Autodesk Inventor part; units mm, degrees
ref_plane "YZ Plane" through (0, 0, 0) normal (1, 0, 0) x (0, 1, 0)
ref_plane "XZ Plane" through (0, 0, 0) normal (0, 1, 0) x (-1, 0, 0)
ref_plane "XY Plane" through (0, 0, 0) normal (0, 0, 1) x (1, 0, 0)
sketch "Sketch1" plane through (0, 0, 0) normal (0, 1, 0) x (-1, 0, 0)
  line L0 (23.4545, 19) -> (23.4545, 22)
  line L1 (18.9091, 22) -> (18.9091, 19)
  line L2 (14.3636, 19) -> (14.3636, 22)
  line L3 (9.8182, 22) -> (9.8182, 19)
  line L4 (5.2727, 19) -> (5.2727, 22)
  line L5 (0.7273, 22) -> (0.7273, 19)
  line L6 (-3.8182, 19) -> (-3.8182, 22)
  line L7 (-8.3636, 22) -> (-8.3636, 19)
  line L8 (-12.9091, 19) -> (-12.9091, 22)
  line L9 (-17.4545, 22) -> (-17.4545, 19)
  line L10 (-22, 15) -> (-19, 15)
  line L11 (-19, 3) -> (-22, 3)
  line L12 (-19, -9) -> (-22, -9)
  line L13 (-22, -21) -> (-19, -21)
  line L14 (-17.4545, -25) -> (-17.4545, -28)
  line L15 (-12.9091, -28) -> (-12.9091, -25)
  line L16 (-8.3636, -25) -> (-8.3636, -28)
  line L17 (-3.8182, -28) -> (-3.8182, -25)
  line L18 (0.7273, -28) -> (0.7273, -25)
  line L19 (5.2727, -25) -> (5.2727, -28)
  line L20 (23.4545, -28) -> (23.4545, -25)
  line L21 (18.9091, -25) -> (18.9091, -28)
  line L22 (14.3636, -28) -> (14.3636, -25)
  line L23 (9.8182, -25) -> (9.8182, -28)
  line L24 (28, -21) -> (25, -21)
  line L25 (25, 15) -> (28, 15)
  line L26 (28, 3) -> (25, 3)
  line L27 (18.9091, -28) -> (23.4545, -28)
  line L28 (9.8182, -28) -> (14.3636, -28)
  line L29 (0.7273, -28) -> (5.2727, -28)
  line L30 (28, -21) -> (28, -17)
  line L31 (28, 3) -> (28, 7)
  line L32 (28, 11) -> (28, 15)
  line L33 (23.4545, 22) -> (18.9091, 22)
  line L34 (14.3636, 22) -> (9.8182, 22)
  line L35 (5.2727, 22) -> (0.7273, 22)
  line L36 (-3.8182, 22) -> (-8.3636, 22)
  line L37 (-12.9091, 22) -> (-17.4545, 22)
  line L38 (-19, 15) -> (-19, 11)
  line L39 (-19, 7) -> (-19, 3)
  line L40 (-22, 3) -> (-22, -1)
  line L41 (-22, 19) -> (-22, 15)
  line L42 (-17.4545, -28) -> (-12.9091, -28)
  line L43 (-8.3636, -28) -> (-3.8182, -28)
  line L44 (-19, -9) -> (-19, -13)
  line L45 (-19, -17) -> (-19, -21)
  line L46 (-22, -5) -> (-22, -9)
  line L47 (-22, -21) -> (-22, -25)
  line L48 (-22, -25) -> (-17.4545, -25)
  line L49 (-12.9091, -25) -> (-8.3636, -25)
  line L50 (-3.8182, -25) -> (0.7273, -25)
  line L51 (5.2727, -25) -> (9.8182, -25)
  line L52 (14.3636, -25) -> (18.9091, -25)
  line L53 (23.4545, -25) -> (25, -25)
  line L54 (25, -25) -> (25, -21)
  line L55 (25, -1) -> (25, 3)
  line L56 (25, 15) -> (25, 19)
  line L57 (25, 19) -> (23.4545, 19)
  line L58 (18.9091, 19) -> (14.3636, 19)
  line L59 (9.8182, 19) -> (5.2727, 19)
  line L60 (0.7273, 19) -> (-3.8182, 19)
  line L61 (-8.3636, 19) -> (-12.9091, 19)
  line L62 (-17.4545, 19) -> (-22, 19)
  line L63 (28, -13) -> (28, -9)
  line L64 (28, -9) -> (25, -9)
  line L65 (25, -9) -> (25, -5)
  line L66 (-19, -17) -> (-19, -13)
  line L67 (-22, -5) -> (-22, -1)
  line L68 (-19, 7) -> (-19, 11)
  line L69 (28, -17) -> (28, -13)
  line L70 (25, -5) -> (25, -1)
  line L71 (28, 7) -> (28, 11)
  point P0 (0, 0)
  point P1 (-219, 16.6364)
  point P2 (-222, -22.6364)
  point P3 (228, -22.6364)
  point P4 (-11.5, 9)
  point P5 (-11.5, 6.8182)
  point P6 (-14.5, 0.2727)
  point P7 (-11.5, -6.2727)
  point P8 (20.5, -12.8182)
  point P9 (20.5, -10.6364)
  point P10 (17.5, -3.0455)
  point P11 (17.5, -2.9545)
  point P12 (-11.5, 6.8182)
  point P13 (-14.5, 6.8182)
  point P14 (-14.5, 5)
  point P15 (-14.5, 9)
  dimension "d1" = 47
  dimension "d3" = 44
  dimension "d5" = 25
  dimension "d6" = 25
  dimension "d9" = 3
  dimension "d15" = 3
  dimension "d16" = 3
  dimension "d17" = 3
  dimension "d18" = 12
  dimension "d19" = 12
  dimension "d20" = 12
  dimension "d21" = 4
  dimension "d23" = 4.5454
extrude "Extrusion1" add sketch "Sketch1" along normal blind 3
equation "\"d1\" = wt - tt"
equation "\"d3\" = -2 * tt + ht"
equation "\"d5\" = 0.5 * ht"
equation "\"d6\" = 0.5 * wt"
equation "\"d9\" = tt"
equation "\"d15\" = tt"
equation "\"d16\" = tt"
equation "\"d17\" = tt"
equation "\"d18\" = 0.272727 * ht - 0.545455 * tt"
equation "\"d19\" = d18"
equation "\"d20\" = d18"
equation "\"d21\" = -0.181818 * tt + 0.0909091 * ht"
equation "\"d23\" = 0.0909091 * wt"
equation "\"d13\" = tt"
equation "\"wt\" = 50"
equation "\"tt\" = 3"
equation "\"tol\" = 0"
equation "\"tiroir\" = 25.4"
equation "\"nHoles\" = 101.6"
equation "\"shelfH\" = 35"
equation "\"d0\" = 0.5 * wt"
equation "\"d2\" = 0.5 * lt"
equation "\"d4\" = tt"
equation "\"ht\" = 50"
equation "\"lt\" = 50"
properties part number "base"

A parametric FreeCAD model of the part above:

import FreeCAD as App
import Part
import Sketcher
Q = App.Units.Quantity


def add_polygon(sketch, points):
    """Adds a closed chain of lines whose ends are joined by coincident constraints."""
    first, n = sketch.GeometryCount, len(points)
    for a, b in zip(points, points[1:] + points[:1]):
        sketch.addGeometry(Part.LineSegment(App.Vector(*a, 0), App.Vector(*b, 0)), False)
    for i in range(n):
        sketch.addConstraint(Sketcher.Constraint("Coincident", first + i, 2, first + (i + 1) % n, 1))

doc = App.newDocument("Part")
body = doc.addObject("PartDesign::Body", "Body")

# Sketch on XZ plane
sketch1 = body.newObject("Sketcher::SketchObject", "Sketch")
sketch1.AttachmentSupport = (doc.getObject("XZ_Plane"), [""])
sketch1.MapMode = "FlatFace"
add_polygon(sketch1, [(-25, 19), (-23.4545, 19), (-23.4545, 22), (-18.9091, 22), (-18.9091, 19), (-14.3636, 19), (-14.3636, 22), (-9.8182, 22), (-9.8182, 19), (-5.2727, 19), (-5.2727, 22), (-0.7273, 22), (-0.7273, 19), (3.8182, 19), (3.8182, 22), (8.3636, 22), (8.3636, 19), (12.9091, 19), (12.9091, 22), (17.4545, 22), (17.4545, 19), (22, 19), (22, 15), (19, 15), (19, 3), (22, 3), (22, -9), (19, -9), (19, -21), (22, -21), (22, -25), (17.4545, -25), (17.4545, -28), (12.9091, -28), (12.9091, -25), (8.3636, -25), (8.3636, -28), (3.8182, -28), (3.8182, -25), (-0.7273, -25), (-0.7273, -28), (-5.2727, -28), (-5.2727, -25), (-9.8182, -25), (-9.8182, -28), (-14.3636, -28), (-14.3636, -25), (-18.9091, -25), (-18.9091, -28), (-23.4545, -28), (-23.4545, -25), (-25, -25), (-25, -21), (-28, -21), (-28, -9), (-25, -9), (-25, 3), (-28, 3), (-28, 15), (-25, 15)])  # lines 0-59
sketch1.addConstraint(Sketcher.Constraint("Horizontal", 0))
sketch1.addConstraint(Sketcher.Constraint("Vertical", 1))
sketch1.addConstraint(Sketcher.Constraint("Horizontal", 2))
sketch1.addConstraint(Sketcher.Constraint("Vertical", 3))
sketch1.addConstraint(Sketcher.Constraint("Horizontal", 4))
sketch1.addConstraint(Sketcher.Constraint("Vertical", 5))
sketch1.addConstraint(Sketcher.Constraint("Horizontal", 6))
sketch1.addConstraint(Sketcher.Constraint("Vertical", 7))
sketch1.addConstraint(Sketcher.Constraint("Horizontal", 8))
sketch1.addConstraint(Sketcher.Constraint("Vertical", 9))
sketch1.addConstraint(Sketcher.Constraint("Horizontal", 10))
sketch1.addConstraint(Sketcher.Constraint("Vertical", 11))
sketch1.addConstraint(Sketcher.Constraint("Horizontal", 12))
sketch1.addConstraint(Sketcher.Constraint("Vertical", 13))
sketch1.addConstraint(Sketcher.Constraint("Horizontal", 14))
sketch1.addConstraint(Sketcher.Constraint("Vertical", 15))
sketch1.addConstraint(Sketcher.Constraint("Horizontal", 16))
sketch1.addConstraint(Sketcher.Constraint("Vertical", 17))
sketch1.addConstraint(Sketcher.Constraint("Horizontal", 18))
sketch1.addConstraint(Sketcher.Constraint("Vertical", 19))
sketch1.addConstraint(Sketcher.Constraint("Horizontal", 20))
sketch1.addConstraint(Sketcher.Constraint("Vertical", 21))
sketch1.addConstraint(Sketcher.Constraint("Horizontal", 22))
sketch1.addConstraint(Sketcher.Constraint("Vertical", 23))
sketch1.addConstraint(Sketcher.Constraint("Horizontal", 24))
sketch1.addConstraint(Sketcher.Constraint("Vertical", 25))
sketch1.addConstraint(Sketcher.Constraint("Horizontal", 26))
sketch1.addConstraint(Sketcher.Constraint("Vertical", 27))
sketch1.addConstraint(Sketcher.Constraint("Horizontal", 28))
sketch1.addConstraint(Sketcher.Constraint("Vertical", 29))
sketch1.addConstraint(Sketcher.Constraint("Horizontal", 30))
sketch1.addConstraint(Sketcher.Constraint("Vertical", 31))
sketch1.addConstraint(Sketcher.Constraint("Horizontal", 32))
sketch1.addConstraint(Sketcher.Constraint("Vertical", 33))
sketch1.addConstraint(Sketcher.Constraint("Horizontal", 34))
sketch1.addConstraint(Sketcher.Constraint("Vertical", 35))
sketch1.addConstraint(Sketcher.Constraint("Horizontal", 36))
sketch1.addConstraint(Sketcher.Constraint("Vertical", 37))
sketch1.addConstraint(Sketcher.Constraint("Horizontal", 38))
sketch1.addConstraint(Sketcher.Constraint("Vertical", 39))
sketch1.addConstraint(Sketcher.Constraint("Horizontal", 40))
sketch1.addConstraint(Sketcher.Constraint("Vertical", 41))
sketch1.addConstraint(Sketcher.Constraint("Horizontal", 42))
sketch1.addConstraint(Sketcher.Constraint("Vertical", 43))
sketch1.addConstraint(Sketcher.Constraint("Horizontal", 44))
sketch1.addConstraint(Sketcher.Constraint("Vertical", 45))
sketch1.addConstraint(Sketcher.Constraint("Horizontal", 46))
sketch1.addConstraint(Sketcher.Constraint("Vertical", 47))
sketch1.addConstraint(Sketcher.Constraint("Horizontal", 48))
sketch1.addConstraint(Sketcher.Constraint("Vertical", 49))
sketch1.addConstraint(Sketcher.Constraint("Horizontal", 50))
sketch1.addConstraint(Sketcher.Constraint("Vertical", 51))
sketch1.addConstraint(Sketcher.Constraint("Horizontal", 52))
sketch1.addConstraint(Sketcher.Constraint("Vertical", 53))
sketch1.addConstraint(Sketcher.Constraint("Horizontal", 54))
sketch1.addConstraint(Sketcher.Constraint("Vertical", 55))
sketch1.addConstraint(Sketcher.Constraint("Horizontal", 56))
sketch1.addConstraint(Sketcher.Constraint("Vertical", 57))
sketch1.addConstraint(Sketcher.Constraint("Horizontal", 58))
sketch1.addConstraint(Sketcher.Constraint("Vertical", 59))
sketch1.addConstraint(Sketcher.Constraint("Horizontal", 0, 2, 3, 2))
sketch1.addConstraint(Sketcher.Constraint("Horizontal", 2, 2, 5, 2))
sketch1.addConstraint(Sketcher.Constraint("Horizontal", 4, 2, 7, 2))
sketch1.addConstraint(Sketcher.Constraint("Horizontal", 6, 2, 9, 2))
sketch1.addConstraint(Sketcher.Constraint("Horizontal", 8, 2, 11, 2))
sketch1.addConstraint(Sketcher.Constraint("Horizontal", 10, 2, 13, 2))
sketch1.addConstraint(Sketcher.Constraint("Horizontal", 12, 2, 15, 2))
sketch1.addConstraint(Sketcher.Constraint("Horizontal", 14, 2, 17, 2))
sketch1.addConstraint(Sketcher.Constraint("Horizontal", 16, 2, 19, 2))
sketch1.addConstraint(Sketcher.Constraint("Horizontal", 30, 2, 33, 2))
sketch1.addConstraint(Sketcher.Constraint("Horizontal", 32, 2, 35, 2))
sketch1.addConstraint(Sketcher.Constraint("Horizontal", 34, 2, 37, 2))
sketch1.addConstraint(Sketcher.Constraint("Horizontal", 36, 2, 39, 2))
sketch1.addConstraint(Sketcher.Constraint("Horizontal", 38, 2, 41, 2))
sketch1.addConstraint(Sketcher.Constraint("Horizontal", 40, 2, 43, 2))
sketch1.addConstraint(Sketcher.Constraint("Horizontal", 42, 2, 45, 2))
sketch1.addConstraint(Sketcher.Constraint("Horizontal", 44, 2, 47, 2))
sketch1.addConstraint(Sketcher.Constraint("Horizontal", 46, 2, 49, 2))
sketch1.addConstraint(Sketcher.Constraint("Horizontal", 28, 2, 51, 2))
sketch1.addConstraint(Sketcher.Constraint("Horizontal", 26, 2, 53, 2))
sketch1.addConstraint(Sketcher.Constraint("Horizontal", 24, 2, 55, 2))
sketch1.addConstraint(Sketcher.Constraint("Horizontal", 22, 2, 57, 2))
sketch1.addConstraint(Sketcher.Constraint("Vertical", 21, 2, 24, 2))
sketch1.addConstraint(Sketcher.Constraint("Vertical", 23, 2, 26, 2))
sketch1.addConstraint(Sketcher.Constraint("Vertical", 25, 2, 28, 2))
sketch1.addConstraint(Sketcher.Constraint("Vertical", 19, 2, 30, 2))
sketch1.addConstraint(Sketcher.Constraint("Vertical", 17, 2, 32, 2))
sketch1.addConstraint(Sketcher.Constraint("Vertical", 15, 2, 34, 2))
sketch1.addConstraint(Sketcher.Constraint("Vertical", 13, 2, 36, 2))
sketch1.addConstraint(Sketcher.Constraint("Vertical", 11, 2, 38, 2))
sketch1.addConstraint(Sketcher.Constraint("Vertical", 9, 2, 40, 2))
sketch1.addConstraint(Sketcher.Constraint("Vertical", 7, 2, 42, 2))
sketch1.addConstraint(Sketcher.Constraint("Vertical", 5, 2, 44, 2))
sketch1.addConstraint(Sketcher.Constraint("Vertical", 3, 2, 46, 2))
sketch1.addConstraint(Sketcher.Constraint("Vertical", 1, 2, 48, 2))
sketch1.addConstraint(Sketcher.Constraint("Vertical", 51, 2, 54, 2))
sketch1.addConstraint(Sketcher.Constraint("Vertical", 53, 2, 56, 2))
sketch1.addConstraint(Sketcher.Constraint("Vertical", 55, 2, 58, 2))
sketch1.addConstraint(Sketcher.Constraint("Equal", 2, 4))
sketch1.addConstraint(Sketcher.Constraint("Equal", 4, 6))
sketch1.addConstraint(Sketcher.Constraint("Equal", 6, 8))
sketch1.addConstraint(Sketcher.Constraint("Equal", 8, 10))
sketch1.addConstraint(Sketcher.Constraint("Equal", 10, 12))
sketch1.addConstraint(Sketcher.Constraint("Equal", 12, 14))
sketch1.addConstraint(Sketcher.Constraint("Equal", 14, 16))
sketch1.addConstraint(Sketcher.Constraint("Equal", 16, 18))
sketch1.addConstraint(Sketcher.Constraint("Equal", 18, 20))
sketch1.addConstraint(Sketcher.Constraint("Equal", 28, 52))
sketch1.addConstraint(Sketcher.Constraint("Equal", 58, 1))
sketch1.addConstraint(Sketcher.Constraint("Equal", 23, 25))
sketch1.addConstraint(Sketcher.Constraint("Equal", 25, 27))
sketch1.addConstraint(Sketcher.Constraint("Equal", 21, 29))
sketch1.addConstraint(Sketcher.Constraint("Equal", 19, 31))
sketch1.addConstraint(Sketcher.Constraint("DistanceX", 22, 2, 22, 1, Q("3 mm")))
sketch1.addConstraint(Sketcher.Constraint("DistanceY", 21, 2, 21, 1, Q("4 mm")))
sketch1.addConstraint(Sketcher.Constraint("DistanceY", 23, 2, 23, 1, Q("12 mm")))
sketch1.addConstraint(Sketcher.Constraint("DistanceY", -1, 1, 23, 2, Q("3 mm")))
sketch1.addConstraint(Sketcher.Constraint("DistanceX", 50, 2, -1, 1, Q("25 mm")))
sketch1.addConstraint(Sketcher.Constraint("DistanceX", 2, 1, 2, 2, Q("4.5454 mm")))
sketch1.addConstraint(Sketcher.Constraint("DistanceX", -1, 1, 20, 2, Q("22 mm")))
pad1 = body.newObject("PartDesign::Pad", "Pad")
pad1.Profile = sketch1
pad1.Length = 3
pad1.Reversed = True

doc.recompute()
